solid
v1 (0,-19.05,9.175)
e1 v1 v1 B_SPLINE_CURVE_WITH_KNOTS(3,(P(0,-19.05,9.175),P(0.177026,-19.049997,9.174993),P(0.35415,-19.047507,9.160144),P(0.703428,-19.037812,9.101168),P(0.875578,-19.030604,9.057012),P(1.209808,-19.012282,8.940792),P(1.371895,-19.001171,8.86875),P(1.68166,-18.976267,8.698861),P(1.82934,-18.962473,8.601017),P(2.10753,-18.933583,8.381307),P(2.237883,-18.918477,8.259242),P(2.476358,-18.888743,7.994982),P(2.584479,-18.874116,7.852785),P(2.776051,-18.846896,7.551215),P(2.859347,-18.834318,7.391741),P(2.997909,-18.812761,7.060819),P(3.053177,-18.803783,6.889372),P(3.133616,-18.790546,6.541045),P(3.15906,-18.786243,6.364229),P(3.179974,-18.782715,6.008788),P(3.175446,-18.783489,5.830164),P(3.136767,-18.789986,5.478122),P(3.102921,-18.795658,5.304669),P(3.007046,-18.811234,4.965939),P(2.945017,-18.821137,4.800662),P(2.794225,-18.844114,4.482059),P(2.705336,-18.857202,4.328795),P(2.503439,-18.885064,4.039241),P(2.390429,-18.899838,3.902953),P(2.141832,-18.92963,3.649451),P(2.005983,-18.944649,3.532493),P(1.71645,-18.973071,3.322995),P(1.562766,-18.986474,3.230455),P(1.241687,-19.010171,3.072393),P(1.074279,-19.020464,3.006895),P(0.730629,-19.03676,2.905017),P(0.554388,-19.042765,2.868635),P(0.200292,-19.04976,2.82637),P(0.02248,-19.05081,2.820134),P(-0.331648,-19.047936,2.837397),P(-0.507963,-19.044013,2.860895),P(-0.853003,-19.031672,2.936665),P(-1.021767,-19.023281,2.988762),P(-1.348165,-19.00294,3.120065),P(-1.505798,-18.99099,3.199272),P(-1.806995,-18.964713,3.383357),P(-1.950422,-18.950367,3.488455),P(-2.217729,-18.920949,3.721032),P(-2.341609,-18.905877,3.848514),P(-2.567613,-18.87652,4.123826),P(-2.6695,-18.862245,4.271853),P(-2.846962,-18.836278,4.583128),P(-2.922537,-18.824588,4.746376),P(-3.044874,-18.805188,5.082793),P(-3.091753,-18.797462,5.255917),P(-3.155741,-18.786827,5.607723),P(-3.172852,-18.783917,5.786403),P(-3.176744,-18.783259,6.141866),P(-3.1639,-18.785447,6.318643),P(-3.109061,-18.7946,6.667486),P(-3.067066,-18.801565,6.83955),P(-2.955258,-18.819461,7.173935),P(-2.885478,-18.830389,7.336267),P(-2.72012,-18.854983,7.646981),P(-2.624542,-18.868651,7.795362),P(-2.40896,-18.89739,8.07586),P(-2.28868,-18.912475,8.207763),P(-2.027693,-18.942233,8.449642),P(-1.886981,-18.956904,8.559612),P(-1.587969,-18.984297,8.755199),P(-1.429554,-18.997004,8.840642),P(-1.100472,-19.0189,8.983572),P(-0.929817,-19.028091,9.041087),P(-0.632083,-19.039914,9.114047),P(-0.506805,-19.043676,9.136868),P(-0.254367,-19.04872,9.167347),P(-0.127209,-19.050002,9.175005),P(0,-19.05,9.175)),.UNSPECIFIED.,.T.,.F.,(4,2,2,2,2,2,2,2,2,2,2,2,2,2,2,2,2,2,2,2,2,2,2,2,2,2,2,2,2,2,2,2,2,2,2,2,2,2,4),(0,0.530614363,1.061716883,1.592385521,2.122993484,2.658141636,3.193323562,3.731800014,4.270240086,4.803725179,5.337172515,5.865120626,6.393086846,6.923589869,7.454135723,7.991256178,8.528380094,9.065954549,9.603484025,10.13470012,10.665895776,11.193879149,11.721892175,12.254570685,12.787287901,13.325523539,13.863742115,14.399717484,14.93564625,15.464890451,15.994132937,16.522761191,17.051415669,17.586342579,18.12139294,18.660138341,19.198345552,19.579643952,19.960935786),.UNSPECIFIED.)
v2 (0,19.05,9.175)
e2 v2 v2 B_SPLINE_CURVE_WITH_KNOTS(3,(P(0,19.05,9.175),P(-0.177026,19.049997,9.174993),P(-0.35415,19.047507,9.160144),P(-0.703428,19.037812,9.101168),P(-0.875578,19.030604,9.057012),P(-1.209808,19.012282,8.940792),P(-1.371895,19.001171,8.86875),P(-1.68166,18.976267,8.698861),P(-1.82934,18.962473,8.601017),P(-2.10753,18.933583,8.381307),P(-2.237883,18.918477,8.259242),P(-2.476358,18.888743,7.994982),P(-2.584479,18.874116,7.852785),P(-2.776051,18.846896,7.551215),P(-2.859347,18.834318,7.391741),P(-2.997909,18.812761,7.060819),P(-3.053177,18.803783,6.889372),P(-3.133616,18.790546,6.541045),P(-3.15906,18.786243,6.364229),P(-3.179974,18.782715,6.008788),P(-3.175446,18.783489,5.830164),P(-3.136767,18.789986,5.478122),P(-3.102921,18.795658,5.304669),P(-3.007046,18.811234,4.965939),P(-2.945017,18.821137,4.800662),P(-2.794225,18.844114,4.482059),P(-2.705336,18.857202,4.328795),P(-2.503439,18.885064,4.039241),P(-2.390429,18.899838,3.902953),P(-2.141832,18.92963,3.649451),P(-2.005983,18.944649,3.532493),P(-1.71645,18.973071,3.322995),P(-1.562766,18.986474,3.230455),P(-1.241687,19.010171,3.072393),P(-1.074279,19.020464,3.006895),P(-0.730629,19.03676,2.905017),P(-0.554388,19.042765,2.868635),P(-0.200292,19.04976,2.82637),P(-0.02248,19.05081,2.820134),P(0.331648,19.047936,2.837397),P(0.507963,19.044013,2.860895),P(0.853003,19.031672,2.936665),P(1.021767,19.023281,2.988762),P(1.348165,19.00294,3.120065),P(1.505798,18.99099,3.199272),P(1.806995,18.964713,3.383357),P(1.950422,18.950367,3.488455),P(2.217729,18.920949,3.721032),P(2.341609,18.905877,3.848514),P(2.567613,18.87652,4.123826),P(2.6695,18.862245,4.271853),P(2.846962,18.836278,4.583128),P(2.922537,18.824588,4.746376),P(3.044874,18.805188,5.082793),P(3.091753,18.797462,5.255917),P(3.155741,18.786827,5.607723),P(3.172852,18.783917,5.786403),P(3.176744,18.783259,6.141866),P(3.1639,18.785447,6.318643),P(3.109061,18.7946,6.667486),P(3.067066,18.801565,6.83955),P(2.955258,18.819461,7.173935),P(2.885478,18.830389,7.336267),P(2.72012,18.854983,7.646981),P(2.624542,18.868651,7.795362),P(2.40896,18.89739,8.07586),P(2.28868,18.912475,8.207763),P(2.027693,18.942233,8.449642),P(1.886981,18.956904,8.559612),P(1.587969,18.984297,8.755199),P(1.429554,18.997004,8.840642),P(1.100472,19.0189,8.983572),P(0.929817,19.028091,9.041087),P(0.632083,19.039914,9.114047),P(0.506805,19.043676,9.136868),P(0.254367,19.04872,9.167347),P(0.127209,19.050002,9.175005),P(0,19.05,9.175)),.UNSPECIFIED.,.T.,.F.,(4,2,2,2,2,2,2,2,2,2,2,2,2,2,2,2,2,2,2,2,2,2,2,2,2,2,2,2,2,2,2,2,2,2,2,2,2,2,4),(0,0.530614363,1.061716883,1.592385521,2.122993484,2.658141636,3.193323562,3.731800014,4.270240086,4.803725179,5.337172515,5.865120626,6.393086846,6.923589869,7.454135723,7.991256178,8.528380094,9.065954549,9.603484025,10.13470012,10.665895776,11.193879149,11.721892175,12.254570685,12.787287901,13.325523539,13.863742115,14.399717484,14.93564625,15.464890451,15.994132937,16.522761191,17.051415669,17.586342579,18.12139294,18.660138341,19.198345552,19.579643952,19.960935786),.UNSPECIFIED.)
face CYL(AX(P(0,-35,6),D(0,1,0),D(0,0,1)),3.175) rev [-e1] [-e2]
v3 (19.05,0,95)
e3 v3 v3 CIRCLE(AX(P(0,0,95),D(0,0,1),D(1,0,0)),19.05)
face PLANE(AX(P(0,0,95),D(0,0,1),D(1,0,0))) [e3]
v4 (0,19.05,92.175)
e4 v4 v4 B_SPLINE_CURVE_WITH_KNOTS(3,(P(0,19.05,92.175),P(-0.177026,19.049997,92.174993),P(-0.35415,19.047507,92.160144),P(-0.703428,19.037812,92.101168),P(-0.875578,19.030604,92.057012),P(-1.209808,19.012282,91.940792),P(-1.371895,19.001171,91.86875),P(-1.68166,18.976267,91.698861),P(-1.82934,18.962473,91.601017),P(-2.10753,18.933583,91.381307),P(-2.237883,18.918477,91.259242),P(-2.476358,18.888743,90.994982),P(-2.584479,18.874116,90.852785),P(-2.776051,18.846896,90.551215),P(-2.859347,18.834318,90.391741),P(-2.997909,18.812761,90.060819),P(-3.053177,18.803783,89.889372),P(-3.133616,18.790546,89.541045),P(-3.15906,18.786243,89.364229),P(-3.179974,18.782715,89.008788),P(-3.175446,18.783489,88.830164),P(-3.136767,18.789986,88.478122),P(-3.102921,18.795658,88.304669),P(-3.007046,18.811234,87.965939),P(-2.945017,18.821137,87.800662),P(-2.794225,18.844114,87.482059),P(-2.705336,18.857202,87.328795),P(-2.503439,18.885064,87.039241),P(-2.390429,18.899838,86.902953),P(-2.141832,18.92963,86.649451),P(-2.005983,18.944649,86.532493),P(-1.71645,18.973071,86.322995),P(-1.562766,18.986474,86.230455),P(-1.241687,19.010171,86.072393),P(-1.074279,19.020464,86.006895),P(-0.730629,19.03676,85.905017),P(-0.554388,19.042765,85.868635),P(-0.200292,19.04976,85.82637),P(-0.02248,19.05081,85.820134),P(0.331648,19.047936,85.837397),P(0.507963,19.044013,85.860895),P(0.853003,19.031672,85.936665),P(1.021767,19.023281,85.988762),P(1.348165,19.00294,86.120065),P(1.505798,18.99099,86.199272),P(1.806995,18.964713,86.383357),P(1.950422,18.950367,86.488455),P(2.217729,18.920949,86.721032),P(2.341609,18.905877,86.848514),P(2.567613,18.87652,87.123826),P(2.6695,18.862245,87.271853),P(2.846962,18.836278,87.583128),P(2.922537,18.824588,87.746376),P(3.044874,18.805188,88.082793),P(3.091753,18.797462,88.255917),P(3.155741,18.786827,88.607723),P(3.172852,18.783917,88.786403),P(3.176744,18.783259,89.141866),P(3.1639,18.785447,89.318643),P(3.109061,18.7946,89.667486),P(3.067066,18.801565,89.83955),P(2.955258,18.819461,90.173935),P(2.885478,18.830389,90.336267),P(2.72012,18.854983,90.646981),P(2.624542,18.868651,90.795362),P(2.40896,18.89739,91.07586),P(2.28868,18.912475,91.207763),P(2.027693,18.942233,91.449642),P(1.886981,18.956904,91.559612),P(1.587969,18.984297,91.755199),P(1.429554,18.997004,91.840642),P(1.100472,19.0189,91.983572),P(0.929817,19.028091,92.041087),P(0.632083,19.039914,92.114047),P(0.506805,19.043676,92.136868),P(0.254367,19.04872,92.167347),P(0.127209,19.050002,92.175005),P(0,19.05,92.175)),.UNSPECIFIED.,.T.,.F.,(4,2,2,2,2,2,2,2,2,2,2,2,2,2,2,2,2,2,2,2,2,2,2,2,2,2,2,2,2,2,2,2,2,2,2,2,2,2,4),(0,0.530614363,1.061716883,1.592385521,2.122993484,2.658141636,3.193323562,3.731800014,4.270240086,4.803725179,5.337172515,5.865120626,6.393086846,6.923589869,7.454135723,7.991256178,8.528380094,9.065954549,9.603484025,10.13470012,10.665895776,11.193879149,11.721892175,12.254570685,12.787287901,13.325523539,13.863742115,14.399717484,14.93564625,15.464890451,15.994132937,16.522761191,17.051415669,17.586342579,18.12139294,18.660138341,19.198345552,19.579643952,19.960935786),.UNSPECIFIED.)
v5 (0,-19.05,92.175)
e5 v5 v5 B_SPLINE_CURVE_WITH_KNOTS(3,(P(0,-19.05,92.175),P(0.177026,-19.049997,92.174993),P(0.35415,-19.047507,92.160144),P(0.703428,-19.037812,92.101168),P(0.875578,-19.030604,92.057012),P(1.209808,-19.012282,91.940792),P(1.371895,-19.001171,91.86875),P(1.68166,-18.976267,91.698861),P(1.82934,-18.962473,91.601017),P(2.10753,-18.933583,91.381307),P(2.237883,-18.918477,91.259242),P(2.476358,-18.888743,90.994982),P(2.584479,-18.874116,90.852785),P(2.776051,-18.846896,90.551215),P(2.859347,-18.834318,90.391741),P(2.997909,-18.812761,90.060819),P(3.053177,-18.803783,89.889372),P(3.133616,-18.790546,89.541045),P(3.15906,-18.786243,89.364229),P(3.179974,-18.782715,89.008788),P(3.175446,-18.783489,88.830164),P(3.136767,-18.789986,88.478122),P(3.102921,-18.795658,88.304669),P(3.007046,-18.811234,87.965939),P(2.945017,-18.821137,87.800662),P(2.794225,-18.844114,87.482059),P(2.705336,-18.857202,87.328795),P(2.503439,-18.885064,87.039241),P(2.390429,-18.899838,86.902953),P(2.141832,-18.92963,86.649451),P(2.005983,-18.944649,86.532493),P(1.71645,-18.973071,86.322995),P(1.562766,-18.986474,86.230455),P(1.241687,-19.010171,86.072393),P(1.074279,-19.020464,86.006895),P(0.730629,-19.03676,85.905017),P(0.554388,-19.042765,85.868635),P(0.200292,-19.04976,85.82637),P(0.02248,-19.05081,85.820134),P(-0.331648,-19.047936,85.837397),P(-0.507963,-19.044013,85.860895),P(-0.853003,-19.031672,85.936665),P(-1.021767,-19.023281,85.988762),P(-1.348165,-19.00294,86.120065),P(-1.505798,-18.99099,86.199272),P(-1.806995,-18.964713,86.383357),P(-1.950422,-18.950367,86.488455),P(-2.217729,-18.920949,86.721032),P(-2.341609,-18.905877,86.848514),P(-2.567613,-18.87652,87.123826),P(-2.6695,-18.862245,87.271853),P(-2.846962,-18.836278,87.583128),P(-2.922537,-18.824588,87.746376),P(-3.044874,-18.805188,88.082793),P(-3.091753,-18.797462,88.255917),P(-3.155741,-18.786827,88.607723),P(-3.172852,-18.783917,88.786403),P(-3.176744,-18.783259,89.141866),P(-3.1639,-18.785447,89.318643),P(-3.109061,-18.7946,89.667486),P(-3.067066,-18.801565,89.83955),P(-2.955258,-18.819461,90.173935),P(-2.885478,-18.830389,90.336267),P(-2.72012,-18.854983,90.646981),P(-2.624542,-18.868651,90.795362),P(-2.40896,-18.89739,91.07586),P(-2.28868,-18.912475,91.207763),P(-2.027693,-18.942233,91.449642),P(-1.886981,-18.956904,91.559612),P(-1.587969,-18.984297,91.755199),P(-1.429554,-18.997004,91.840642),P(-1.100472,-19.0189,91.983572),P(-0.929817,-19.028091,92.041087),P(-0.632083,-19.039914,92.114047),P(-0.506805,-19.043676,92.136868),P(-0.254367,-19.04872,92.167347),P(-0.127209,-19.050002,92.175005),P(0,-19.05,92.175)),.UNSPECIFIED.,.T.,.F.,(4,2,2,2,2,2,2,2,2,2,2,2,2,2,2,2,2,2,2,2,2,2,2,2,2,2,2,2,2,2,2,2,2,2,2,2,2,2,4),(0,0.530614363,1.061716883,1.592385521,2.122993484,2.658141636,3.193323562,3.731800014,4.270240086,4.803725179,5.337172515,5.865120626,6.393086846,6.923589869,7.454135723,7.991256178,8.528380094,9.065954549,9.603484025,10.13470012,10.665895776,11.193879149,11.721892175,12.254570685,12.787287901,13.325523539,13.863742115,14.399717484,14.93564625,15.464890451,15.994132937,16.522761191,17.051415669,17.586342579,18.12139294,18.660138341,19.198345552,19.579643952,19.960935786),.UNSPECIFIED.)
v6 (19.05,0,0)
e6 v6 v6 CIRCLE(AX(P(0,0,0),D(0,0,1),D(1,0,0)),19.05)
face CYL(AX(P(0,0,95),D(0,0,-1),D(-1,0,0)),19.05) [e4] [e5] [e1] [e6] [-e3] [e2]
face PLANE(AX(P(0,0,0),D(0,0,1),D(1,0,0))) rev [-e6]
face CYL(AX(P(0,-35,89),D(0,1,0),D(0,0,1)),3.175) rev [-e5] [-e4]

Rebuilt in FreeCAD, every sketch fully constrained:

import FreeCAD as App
import Part
import Sketcher
from FreeCAD import Vector

doc = App.newDocument("Part")
body = doc.addObject("PartDesign::Body", "Body")

# Sketch on XY plane
sketch1 = doc.addObject("Sketcher::SketchObject", "Sketch")
body.addObject(sketch1)
sketch1.AttachmentSupport = (doc.XY_Plane, [""])
sketch1.MapMode = "FlatFace"
sketch1.addGeometry(Part.Circle(Vector(0, 0, 0), Vector(0, 0, 1), 19), False)
sketch1.addConstraint(Sketcher.Constraint("Coincident", 0, 3, -1, 1))
sketch1.addConstraint(Sketcher.Constraint("Diameter", 0, 38.1))
pad1 = doc.addObject("PartDesign::Pad", "Pad")
body.addObject(pad1)
pad1.Profile = sketch1
pad1.Length = 95

# Sketch on XZ plane
sketch2 = doc.addObject("Sketcher::SketchObject", "Sketch001")
body.addObject(sketch2)
sketch2.AttachmentSupport = (doc.XZ_Plane, [""])
sketch2.MapMode = "FlatFace"
sketch2.addGeometry(Part.Circle(Vector(0, 6, 0), Vector(0, 0, 1), 3.2), False)
sketch2.addGeometry(Part.Circle(Vector(0, 89, 0), Vector(0, 0, 1), 3.2), False)
sketch2.addConstraint(Sketcher.Constraint("Equal", 0, 1))
sketch2.addConstraint(Sketcher.Constraint("PointOnObject", 0, 3, -2))
sketch2.addConstraint(Sketcher.Constraint("PointOnObject", 1, 3, -2))
sketch2.addConstraint(Sketcher.Constraint("Diameter", 0, 6.35))
sketch2.addConstraint(Sketcher.Constraint("DistanceY", -1, 1, 0, 3, 6.0))
sketch2.addConstraint(Sketcher.Constraint("DistanceY", -1, 1, 1, 3, 89.0))
pocket1 = doc.addObject("PartDesign::Pocket", "Pocket")
body.addObject(pocket1)
pocket1.Profile = sketch2
pocket1.Length = 70
pocket1.Midplane = True

doc.recompute()
